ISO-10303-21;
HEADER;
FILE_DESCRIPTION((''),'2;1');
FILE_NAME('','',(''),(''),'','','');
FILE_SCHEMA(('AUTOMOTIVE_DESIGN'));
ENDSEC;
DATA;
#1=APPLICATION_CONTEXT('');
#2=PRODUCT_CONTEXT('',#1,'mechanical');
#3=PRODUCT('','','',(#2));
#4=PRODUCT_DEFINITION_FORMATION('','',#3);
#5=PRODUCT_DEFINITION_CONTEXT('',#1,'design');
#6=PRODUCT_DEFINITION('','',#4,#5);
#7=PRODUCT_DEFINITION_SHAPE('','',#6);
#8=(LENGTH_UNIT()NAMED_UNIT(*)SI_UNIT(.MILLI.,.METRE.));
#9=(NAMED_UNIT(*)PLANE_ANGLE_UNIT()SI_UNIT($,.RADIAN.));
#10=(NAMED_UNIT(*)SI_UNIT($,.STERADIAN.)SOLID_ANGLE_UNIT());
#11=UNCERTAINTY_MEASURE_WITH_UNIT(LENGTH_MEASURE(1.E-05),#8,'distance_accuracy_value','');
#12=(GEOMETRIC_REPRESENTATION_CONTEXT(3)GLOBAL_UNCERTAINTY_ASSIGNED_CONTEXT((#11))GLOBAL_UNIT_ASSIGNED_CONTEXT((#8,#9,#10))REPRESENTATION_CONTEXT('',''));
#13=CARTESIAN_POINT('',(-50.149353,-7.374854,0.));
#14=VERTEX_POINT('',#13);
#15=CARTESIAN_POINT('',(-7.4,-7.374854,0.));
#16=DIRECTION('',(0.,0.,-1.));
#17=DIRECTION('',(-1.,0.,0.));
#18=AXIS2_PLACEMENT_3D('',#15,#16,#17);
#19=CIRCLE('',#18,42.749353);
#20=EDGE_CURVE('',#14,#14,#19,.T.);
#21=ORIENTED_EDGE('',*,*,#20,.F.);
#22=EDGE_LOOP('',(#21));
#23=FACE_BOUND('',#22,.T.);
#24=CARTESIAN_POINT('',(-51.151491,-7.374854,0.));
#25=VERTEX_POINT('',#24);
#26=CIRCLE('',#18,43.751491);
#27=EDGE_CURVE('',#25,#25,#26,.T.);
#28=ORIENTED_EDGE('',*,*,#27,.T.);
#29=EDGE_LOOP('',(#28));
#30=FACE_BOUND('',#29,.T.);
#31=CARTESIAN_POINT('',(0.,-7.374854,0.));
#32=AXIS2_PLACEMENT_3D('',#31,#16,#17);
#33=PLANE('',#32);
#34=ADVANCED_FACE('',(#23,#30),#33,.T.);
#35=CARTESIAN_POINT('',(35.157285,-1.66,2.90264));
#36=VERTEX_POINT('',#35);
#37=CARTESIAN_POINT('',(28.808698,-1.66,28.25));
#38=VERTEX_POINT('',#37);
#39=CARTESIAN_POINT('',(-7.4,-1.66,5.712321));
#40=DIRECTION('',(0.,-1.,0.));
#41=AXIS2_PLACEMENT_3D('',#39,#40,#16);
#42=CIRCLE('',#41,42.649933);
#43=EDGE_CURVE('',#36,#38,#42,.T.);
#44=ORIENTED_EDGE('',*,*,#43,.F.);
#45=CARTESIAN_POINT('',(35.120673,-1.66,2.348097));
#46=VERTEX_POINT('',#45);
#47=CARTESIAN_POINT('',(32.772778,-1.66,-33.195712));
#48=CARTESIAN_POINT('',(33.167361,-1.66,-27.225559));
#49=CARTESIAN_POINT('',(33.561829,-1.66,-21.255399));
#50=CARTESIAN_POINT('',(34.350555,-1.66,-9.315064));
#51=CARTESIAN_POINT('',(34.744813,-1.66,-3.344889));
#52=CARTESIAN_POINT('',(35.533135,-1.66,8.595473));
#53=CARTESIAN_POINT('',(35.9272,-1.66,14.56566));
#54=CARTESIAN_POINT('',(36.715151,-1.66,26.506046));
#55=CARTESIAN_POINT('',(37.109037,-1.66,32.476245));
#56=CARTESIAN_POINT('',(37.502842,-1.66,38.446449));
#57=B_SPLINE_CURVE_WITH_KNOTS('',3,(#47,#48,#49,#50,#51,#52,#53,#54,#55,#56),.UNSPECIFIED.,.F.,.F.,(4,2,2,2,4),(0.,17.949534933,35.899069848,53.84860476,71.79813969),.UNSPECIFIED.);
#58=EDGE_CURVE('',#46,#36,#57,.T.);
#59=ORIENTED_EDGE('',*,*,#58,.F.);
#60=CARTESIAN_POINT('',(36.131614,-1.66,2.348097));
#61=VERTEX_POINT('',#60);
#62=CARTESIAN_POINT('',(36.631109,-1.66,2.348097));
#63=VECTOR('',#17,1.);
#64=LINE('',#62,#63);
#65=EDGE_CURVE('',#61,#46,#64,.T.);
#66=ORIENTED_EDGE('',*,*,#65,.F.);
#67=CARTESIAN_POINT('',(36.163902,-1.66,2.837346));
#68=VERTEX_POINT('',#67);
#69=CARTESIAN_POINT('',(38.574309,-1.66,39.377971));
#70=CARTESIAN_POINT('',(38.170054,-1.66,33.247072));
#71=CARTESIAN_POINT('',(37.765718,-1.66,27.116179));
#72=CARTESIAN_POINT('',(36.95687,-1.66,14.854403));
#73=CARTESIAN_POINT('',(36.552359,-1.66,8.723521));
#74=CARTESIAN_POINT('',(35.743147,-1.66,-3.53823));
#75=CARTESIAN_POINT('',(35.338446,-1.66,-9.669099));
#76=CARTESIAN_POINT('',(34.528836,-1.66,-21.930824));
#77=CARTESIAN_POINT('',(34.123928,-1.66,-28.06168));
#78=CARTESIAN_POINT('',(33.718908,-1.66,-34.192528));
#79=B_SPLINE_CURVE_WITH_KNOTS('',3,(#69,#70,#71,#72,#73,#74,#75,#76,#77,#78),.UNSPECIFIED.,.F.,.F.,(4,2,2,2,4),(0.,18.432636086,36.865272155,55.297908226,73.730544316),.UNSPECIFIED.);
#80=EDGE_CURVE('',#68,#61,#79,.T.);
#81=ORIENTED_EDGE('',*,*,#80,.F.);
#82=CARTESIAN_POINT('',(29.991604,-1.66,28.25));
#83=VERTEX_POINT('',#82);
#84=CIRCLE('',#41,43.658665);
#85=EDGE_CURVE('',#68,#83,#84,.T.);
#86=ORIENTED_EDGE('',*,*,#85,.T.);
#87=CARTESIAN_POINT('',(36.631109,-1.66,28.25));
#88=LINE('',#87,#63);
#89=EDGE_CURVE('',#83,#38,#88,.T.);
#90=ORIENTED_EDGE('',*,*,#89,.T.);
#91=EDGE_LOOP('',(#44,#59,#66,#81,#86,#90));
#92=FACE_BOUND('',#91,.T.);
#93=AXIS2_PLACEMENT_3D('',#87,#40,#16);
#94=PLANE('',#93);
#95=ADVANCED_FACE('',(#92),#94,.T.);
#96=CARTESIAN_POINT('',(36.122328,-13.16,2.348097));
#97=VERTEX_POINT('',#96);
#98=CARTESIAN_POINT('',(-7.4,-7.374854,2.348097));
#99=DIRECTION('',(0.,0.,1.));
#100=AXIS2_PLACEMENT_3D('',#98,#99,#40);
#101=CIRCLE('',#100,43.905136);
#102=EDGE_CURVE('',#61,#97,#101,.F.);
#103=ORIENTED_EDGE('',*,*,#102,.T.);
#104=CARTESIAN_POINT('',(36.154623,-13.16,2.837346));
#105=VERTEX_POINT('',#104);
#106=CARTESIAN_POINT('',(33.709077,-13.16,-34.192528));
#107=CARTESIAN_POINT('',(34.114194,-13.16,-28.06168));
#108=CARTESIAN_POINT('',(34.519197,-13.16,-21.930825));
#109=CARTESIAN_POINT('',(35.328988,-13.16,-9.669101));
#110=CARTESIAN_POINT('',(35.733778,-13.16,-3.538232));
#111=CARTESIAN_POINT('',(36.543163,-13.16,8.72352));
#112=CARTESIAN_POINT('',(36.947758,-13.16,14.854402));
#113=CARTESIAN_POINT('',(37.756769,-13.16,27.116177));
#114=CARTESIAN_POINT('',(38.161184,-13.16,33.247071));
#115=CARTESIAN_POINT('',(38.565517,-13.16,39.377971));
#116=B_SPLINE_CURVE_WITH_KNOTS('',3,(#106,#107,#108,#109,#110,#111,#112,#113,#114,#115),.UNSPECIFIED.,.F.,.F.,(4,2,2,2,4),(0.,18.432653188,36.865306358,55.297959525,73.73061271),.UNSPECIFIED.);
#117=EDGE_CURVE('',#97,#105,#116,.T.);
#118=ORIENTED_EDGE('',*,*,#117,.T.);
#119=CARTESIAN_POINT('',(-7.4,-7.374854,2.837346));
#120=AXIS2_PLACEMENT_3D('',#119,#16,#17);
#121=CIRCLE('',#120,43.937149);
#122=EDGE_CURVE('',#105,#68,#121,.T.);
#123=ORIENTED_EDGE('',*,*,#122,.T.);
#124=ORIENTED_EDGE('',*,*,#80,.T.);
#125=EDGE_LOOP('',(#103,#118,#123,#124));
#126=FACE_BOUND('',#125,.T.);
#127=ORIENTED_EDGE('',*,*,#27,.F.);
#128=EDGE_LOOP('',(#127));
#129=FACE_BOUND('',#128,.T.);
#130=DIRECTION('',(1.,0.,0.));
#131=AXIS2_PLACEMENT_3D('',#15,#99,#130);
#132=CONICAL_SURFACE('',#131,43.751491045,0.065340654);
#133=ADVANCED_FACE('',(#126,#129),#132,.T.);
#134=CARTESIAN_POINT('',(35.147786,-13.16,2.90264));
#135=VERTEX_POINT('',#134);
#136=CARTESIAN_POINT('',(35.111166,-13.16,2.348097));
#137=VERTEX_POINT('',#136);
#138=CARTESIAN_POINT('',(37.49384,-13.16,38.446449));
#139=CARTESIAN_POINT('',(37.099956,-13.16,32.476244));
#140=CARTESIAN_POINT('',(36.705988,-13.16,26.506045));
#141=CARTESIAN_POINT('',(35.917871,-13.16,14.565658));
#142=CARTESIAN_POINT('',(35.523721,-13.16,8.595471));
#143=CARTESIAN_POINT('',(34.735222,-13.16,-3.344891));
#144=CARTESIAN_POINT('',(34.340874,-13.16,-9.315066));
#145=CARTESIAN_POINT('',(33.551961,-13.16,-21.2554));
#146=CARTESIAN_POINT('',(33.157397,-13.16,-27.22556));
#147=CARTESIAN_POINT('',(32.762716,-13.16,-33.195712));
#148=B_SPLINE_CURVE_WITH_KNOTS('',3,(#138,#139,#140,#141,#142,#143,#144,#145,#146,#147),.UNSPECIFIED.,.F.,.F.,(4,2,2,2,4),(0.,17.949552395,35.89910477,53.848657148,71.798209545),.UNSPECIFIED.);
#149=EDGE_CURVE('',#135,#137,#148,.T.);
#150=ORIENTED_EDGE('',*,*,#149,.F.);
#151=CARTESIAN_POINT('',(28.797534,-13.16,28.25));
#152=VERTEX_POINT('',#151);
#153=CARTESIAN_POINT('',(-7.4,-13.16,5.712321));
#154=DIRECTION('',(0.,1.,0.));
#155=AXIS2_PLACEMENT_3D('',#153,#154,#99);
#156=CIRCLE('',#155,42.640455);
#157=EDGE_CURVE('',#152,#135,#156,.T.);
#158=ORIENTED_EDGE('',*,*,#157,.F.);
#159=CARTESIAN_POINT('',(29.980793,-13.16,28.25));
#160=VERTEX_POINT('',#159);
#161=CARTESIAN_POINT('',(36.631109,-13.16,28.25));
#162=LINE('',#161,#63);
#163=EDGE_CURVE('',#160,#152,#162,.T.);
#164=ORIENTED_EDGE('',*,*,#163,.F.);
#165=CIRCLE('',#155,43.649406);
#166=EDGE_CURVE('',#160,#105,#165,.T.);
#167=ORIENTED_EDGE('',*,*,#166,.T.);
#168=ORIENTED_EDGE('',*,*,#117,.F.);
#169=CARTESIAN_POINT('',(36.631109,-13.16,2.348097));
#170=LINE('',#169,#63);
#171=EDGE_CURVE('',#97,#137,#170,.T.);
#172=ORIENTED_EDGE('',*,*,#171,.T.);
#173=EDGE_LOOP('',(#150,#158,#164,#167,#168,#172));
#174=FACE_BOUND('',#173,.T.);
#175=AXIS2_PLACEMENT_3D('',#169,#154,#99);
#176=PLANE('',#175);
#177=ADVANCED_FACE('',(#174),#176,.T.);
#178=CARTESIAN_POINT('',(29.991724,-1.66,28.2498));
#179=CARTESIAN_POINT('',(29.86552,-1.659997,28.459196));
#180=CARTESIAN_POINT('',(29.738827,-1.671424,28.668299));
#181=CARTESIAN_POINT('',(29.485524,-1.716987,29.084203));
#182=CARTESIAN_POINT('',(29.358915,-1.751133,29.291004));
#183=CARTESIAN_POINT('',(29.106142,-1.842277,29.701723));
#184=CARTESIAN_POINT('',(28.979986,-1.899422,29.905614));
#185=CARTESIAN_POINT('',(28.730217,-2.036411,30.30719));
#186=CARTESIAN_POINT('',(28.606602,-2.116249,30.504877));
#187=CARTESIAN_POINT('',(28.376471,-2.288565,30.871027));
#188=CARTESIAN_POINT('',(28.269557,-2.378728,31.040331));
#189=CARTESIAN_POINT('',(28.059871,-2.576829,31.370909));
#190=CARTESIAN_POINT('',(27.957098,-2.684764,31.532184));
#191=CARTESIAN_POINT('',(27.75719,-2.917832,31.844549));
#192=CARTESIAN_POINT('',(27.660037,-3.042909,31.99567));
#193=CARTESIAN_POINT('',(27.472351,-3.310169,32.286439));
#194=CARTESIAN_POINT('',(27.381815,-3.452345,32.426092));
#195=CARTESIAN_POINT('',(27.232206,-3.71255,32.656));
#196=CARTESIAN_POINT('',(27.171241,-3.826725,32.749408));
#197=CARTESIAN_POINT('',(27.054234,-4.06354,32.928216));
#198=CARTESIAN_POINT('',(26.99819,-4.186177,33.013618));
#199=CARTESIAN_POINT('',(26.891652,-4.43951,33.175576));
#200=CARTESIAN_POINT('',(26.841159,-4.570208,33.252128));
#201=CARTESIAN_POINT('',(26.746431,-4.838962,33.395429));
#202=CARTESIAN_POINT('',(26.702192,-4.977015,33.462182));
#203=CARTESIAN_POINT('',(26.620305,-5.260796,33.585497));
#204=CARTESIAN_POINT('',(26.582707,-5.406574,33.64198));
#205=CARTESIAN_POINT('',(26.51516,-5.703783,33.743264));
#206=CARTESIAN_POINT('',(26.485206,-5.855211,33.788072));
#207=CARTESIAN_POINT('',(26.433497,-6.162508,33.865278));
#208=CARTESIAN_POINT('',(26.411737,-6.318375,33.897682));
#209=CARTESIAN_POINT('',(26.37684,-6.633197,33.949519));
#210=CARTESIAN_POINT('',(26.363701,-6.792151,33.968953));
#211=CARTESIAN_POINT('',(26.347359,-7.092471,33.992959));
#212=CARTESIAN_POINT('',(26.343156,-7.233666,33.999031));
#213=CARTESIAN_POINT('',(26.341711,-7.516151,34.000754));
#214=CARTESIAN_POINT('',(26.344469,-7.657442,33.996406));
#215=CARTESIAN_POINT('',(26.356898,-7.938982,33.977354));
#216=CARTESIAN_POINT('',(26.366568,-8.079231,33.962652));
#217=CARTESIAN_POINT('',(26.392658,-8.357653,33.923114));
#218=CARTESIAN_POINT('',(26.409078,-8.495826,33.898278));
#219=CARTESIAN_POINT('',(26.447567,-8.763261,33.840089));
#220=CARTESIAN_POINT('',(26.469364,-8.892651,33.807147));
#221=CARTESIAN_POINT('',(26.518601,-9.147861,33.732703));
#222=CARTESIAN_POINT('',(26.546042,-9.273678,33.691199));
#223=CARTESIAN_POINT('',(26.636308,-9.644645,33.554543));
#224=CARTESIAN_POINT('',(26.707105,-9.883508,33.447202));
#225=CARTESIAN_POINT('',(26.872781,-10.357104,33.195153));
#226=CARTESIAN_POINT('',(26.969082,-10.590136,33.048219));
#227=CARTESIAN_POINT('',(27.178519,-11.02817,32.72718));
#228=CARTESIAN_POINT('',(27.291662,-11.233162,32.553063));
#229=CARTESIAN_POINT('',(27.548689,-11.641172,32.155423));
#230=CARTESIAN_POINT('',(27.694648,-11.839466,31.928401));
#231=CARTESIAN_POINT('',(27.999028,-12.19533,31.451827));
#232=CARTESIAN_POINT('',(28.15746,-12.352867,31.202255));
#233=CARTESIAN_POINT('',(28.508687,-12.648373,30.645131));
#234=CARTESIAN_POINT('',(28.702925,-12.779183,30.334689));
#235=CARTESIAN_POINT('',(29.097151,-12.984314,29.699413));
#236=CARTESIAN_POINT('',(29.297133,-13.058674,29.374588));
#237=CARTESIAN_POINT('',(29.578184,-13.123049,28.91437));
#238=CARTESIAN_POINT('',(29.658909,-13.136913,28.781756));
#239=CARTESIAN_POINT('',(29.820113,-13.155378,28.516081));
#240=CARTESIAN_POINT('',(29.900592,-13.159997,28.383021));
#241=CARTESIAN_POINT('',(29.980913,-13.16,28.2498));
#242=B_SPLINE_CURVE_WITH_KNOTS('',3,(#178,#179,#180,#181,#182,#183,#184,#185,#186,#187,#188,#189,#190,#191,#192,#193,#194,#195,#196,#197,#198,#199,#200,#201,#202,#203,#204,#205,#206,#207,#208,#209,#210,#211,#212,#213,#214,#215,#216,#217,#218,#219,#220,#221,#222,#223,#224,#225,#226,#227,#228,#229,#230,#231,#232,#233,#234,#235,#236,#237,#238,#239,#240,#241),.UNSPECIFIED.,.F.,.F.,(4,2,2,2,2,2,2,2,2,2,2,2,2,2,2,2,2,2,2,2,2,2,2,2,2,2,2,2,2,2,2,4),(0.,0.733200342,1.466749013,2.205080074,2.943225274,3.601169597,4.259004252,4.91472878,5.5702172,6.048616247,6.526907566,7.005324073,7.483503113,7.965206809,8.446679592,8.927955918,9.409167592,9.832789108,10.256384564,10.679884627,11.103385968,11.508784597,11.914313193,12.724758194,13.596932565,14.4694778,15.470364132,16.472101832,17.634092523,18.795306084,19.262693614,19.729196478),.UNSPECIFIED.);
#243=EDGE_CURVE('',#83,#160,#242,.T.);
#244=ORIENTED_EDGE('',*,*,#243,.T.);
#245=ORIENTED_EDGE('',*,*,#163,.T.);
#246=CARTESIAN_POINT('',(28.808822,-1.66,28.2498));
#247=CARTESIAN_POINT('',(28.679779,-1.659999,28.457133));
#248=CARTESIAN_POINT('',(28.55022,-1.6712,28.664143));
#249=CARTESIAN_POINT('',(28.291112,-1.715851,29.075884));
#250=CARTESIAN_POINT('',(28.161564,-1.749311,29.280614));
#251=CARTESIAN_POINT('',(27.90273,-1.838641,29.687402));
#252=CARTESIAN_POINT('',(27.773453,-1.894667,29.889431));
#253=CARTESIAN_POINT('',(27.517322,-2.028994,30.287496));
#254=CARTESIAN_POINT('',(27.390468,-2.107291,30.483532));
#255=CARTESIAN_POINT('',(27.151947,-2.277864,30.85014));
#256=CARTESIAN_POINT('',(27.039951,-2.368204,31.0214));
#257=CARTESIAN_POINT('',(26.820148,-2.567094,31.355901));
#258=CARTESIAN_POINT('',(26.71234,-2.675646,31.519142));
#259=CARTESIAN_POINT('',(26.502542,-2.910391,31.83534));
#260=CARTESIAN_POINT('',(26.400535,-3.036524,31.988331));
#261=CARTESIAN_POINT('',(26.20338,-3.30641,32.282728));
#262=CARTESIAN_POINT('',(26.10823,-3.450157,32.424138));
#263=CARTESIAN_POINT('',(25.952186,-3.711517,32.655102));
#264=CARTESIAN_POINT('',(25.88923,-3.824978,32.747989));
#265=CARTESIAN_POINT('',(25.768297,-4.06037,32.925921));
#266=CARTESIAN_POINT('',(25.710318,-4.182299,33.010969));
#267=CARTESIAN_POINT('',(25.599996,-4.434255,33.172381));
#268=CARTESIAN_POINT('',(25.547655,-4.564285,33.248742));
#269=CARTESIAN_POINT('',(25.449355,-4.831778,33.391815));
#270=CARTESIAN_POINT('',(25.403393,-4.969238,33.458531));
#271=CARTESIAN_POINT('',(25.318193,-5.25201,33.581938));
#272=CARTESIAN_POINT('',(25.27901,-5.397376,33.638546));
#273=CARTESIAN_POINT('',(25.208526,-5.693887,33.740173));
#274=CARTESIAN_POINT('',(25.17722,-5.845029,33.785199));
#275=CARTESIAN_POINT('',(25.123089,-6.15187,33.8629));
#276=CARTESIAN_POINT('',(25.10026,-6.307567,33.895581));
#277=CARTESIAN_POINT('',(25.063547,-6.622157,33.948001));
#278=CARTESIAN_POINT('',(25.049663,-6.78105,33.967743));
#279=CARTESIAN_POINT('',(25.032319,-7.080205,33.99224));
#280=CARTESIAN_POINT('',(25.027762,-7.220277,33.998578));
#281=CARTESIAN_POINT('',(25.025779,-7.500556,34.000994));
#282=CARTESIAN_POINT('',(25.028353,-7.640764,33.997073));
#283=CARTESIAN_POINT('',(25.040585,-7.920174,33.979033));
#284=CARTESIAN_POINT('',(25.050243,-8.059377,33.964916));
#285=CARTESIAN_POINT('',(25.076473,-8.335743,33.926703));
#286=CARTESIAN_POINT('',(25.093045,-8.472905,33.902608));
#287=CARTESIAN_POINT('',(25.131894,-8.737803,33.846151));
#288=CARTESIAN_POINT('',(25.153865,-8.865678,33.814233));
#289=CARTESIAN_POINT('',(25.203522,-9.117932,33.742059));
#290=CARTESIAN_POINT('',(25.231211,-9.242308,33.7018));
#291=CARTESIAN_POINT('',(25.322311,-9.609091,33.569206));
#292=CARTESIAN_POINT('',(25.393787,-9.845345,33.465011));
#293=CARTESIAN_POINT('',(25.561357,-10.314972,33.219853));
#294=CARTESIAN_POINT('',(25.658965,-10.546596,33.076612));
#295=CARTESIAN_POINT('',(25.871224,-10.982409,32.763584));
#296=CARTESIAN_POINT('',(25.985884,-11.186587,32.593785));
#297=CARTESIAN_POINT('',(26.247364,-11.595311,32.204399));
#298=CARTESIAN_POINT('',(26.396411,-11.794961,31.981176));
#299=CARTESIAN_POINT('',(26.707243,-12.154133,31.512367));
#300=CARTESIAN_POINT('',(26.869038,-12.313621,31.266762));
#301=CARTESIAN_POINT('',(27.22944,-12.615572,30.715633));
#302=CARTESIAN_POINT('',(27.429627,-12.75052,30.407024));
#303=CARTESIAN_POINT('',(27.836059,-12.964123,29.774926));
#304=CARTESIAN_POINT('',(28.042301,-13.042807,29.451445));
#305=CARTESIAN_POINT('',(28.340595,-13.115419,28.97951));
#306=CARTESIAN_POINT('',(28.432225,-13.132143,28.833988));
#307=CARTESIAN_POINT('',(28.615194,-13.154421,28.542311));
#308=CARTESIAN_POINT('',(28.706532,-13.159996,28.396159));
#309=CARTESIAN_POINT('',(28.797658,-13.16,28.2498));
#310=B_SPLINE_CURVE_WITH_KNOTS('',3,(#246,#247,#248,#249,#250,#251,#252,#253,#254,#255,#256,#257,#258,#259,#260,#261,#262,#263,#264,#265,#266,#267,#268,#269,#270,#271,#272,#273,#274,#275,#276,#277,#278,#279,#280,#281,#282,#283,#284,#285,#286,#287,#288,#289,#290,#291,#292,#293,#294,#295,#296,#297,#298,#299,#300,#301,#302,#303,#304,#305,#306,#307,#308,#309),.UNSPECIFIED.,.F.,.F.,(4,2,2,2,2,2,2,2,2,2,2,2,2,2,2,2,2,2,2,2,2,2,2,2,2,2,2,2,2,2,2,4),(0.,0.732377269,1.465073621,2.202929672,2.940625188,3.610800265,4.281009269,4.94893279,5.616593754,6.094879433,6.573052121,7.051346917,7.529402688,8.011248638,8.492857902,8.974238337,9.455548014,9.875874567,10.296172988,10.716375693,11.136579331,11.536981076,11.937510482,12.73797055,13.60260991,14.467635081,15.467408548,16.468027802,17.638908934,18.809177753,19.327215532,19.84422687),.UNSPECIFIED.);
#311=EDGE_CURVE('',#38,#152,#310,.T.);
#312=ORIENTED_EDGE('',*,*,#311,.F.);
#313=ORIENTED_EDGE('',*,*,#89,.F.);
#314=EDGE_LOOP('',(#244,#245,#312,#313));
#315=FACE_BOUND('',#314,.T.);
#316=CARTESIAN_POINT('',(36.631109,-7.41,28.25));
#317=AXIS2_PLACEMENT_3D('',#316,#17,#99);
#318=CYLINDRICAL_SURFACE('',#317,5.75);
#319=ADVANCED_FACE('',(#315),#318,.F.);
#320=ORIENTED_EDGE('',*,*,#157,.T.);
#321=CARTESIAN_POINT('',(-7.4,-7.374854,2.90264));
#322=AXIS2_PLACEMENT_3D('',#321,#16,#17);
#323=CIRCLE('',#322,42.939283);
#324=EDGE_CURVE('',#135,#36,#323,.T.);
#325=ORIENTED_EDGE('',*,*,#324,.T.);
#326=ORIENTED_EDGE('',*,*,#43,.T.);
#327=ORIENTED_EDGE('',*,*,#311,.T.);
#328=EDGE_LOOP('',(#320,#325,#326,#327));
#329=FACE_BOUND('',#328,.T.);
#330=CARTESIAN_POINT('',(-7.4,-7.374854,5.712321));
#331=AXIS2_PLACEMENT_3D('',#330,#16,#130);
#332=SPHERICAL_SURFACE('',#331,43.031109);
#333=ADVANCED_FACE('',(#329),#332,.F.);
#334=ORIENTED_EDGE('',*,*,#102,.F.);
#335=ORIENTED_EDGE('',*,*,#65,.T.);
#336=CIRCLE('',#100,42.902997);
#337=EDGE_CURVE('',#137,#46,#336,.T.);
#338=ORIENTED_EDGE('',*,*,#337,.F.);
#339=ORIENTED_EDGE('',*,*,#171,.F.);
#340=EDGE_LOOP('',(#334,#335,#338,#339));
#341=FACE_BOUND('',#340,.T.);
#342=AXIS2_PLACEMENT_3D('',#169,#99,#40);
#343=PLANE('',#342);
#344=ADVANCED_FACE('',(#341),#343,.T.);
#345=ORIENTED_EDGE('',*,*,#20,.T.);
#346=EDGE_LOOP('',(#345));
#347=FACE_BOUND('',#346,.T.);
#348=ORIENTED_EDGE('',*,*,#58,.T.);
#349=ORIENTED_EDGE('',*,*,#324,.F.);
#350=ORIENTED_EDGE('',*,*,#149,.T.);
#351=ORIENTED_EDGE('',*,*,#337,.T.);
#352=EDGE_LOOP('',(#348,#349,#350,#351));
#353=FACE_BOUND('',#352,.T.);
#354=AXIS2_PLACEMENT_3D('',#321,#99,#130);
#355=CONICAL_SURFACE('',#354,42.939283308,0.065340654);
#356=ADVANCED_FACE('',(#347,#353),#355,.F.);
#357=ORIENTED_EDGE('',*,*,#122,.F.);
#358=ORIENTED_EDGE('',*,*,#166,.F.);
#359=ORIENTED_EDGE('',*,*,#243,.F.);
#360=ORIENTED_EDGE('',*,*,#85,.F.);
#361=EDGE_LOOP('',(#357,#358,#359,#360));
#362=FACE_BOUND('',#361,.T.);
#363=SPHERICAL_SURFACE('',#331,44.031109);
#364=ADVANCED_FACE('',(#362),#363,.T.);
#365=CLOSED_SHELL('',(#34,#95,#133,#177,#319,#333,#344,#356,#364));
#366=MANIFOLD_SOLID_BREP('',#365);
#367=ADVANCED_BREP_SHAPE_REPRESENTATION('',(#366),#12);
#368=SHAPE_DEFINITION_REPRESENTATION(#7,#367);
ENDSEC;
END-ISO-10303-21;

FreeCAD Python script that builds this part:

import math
import FreeCAD as App
import Part
import Sketcher

V = App.Vector

doc = App.newDocument("Part")
body = doc.addObject("PartDesign::Body", "Body")

# Sketch on XZ plane
sketch1 = body.newObject("Sketcher::SketchObject", "Sketch")
sketch1.AttachmentSupport = (doc.getObject("XZ_Plane"), [""])
sketch1.MapMode = "FlatFace"
sketch1.AttachmentOffset = App.Placement(V(0, 0, 7.374854), App.Rotation())
sketch1.addGeometry(Part.LineSegment(V(-50.1, 0, 0), V(-50.3, 2.9, 0)), False)
sketch1.addGeometry(Part.ArcOfCircle(Part.Circle(V(-7.4, 5.7, 0), V(0, 0, 1), 43), math.radians(90), math.radians(184)), False)
sketch1.addGeometry(Part.LineSegment(V(-7.4, 48.7, 0), V(-7.4, 49.7, 0)), False)
sketch1.addGeometry(Part.ArcOfCircle(Part.Circle(V(-7.4, 5.7, 0), V(0, 0, 1), 44), math.radians(90), math.radians(184)), False)
sketch1.addGeometry(Part.LineSegment(V(-51.3, 2.8, 0), V(-51.2, 0, 0)), False)
sketch1.addGeometry(Part.LineSegment(V(-51.2, 0, 0), V(-50.1, 0, 0)), False)
sketch1.addGeometry(Part.LineSegment(V(-7.4, 0, 0), V(-7.4, 49.7, 0)), True)  # axis
sketch1.addConstraint(Sketcher.Constraint("Tangent", 0, 2, 1, 2))
sketch1.addConstraint(Sketcher.Constraint("Coincident", 1, 1, 2, 1))
sketch1.addConstraint(Sketcher.Constraint("Coincident", 2, 2, 3, 1))
sketch1.addConstraint(Sketcher.Constraint("Tangent", 3, 2, 4, 1))
sketch1.addConstraint(Sketcher.Constraint("Coincident", 4, 2, 5, 1))
sketch1.addConstraint(Sketcher.Constraint("Coincident", 5, 2, 0, 1))
sketch1.addConstraint(Sketcher.Constraint("Vertical", 2))
sketch1.addConstraint(Sketcher.Constraint("Horizontal", 5))
sketch1.addConstraint(Sketcher.Constraint("Vertical", 6))
sketch1.addConstraint(Sketcher.Constraint("Coincident", 3, 3, 1, 3))
sketch1.addConstraint(Sketcher.Constraint("Coincident", 6, 2, 2, 2))
sketch1.addConstraint(Sketcher.Constraint("PointOnObject", 4, 2, -1))
sketch1.addConstraint(Sketcher.Constraint("PointOnObject", 6, 1, -1))
sketch1.addConstraint(Sketcher.Constraint("Parallel", 0, 4))
sketch1.addConstraint(Sketcher.Constraint("Vertical", 3, 3, 1, 1))
sketch1.addConstraint(Sketcher.Constraint("DistanceY", 2, 1, 2, 2, 1.0))
sketch1.addConstraint(Sketcher.Constraint("DistanceX", 1, 3, -1, 1, 7.4))
sketch1.addConstraint(Sketcher.Constraint("Radius", 1, 43.031109))
sketch1.addConstraint(Sketcher.Constraint("DistanceY", 6, 1, 6, 2, 49.74343))
sketch1.addConstraint(Sketcher.Constraint("DistanceY", -1, 1, 0, 2, 2.90264))
revolution = body.newObject("PartDesign::Revolution", "Revolution")
revolution.Profile = sketch1
revolution.ReferenceAxis = (sketch1, ["Axis0"])
revolution.Angle = 360

# Sketch on YZ plane
sketch2 = body.newObject("Sketcher::SketchObject", "Sketch001")
sketch2.AttachmentSupport = (doc.getObject("YZ_Plane"), [""])
sketch2.MapMode = "FlatFace"
sketch2.addGeometry(Part.LineSegment(V(-13, 28, 0), V(-13, 2, 0)), False)
sketch2.addGeometry(Part.LineSegment(V(-13, 2, 0), V(-2, 2, 0)), False)
sketch2.addGeometry(Part.LineSegment(V(-2, 2, 0), V(-2, 28, 0)), False)
sketch2.addGeometry(Part.ArcOfCircle(Part.Circle(V(-7, 28, 0), V(0, 0, 1), 6), math.radians(0), math.radians(180)), False)
sketch2.addConstraint(Sketcher.Constraint("Coincident", 0, 2, 1, 1))
sketch2.addConstraint(Sketcher.Constraint("Coincident", 1, 2, 2, 1))
sketch2.addConstraint(Sketcher.Constraint("Tangent", 2, 2, 3, 1))
sketch2.addConstraint(Sketcher.Constraint("Tangent", 3, 2, 0, 1))
sketch2.addConstraint(Sketcher.Constraint("Vertical", 0))
sketch2.addConstraint(Sketcher.Constraint("Horizontal", 1))
sketch2.addConstraint(Sketcher.Constraint("Vertical", 2))
sketch2.addConstraint(Sketcher.Constraint("Radius", 3, 5.75))
sketch2.addConstraint(Sketcher.Constraint("DistanceX", 3, 3, -1, 1, 7.41))
sketch2.addConstraint(Sketcher.Constraint("DistanceY", -1, 1, 3, 3, 28.25))
sketch2.addConstraint(Sketcher.Constraint("DistanceY", 0, 2, 0, 1, 25.901903))
pocket1 = body.newObject("PartDesign::Pocket", "Pocket")
pocket1.Profile = sketch2
pocket1.Type = "ThroughAll"
pocket1.Reversed = True

doc.recompute()
